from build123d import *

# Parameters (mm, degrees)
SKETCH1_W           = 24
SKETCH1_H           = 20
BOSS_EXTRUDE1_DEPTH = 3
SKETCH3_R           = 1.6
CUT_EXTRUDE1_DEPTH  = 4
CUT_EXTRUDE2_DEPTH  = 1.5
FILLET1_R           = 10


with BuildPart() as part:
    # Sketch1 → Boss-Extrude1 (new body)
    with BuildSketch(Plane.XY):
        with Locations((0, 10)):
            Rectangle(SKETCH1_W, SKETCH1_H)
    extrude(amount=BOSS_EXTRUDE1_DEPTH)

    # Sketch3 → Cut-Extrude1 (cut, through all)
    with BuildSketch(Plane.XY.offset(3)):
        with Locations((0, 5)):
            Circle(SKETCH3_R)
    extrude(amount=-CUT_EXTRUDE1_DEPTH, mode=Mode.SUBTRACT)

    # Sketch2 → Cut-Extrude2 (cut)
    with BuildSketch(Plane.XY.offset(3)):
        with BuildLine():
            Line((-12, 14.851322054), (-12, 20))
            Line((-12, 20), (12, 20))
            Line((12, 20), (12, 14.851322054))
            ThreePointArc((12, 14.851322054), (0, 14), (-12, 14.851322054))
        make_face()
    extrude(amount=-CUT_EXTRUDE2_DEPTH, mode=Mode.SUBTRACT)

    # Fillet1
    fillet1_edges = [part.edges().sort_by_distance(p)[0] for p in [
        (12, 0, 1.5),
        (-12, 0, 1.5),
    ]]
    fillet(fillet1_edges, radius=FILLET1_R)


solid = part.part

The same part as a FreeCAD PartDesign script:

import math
import FreeCAD as App
import Part
import Sketcher

V = App.Vector


def edges_at(feature, points):
    """Names of the edges that pass closest to the given points."""
    edges = feature.Shape.Edges
    near = lambda p: min(range(len(edges)), key=lambda i: edges[i].distToShape(Part.Vertex(*p))[0])
    return sorted({f"Edge{near(p) + 1}" for p in points})

doc = App.newDocument("Part")
body = doc.addObject("PartDesign::Body", "Body")

# Sketch on XY plane
sketch1 = doc.addObject("Sketcher::SketchObject", "Sketch")
body.addObject(sketch1)
sketch1.AttachmentSupport = (doc.XY_Plane, [""])
sketch1.MapMode = "FlatFace"
sketch1.addGeometry([
    Part.LineSegment(V(-12, 20, 0), V(-12, 0, 0)),
    Part.LineSegment(V(-12, 0, 0), V(12, 0, 0)),
    Part.LineSegment(V(12, 0, 0), V(12, 20, 0)),
    Part.LineSegment(V(12, 20, 0), V(-12, 20, 0)),
], False)
sketch1.addConstraint([
    Sketcher.Constraint("Coincident", 0, 2, 1, 1),
    Sketcher.Constraint("Coincident", 1, 2, 2, 1),
    Sketcher.Constraint("Coincident", 2, 2, 3, 1),
    Sketcher.Constraint("Coincident", 3, 2, 0, 1),
    Sketcher.Constraint("Vertical", 0),
    Sketcher.Constraint("Horizontal", 1),
    Sketcher.Constraint("Vertical", 2),
    Sketcher.Constraint("Horizontal", 3),
    Sketcher.Constraint("Symmetric", 0, 2, 1, 2, -1, 1),
    Sketcher.Constraint("DistanceX", 1, 1, 1, 2, 24.0),
    Sketcher.Constraint("DistanceY", 0, 2, 0, 1, 20.0),
])
pad1 = doc.addObject("PartDesign::Pad", "Pad")
body.addObject(pad1)
pad1.Profile = sketch1
pad1.Length = 3

# Sketch on XY plane
sketch2 = doc.addObject("Sketcher::SketchObject", "Sketch001")
body.addObject(sketch2)
sketch2.AttachmentSupport = (doc.XY_Plane, [""])
sketch2.MapMode = "FlatFace"
sketch2.AttachmentOffset = App.Placement(V(0, 0, 3), App.Rotation())
sketch2.addGeometry(Part.Circle(V(0, 5, 0), V(0, 0, 1), 1.6), False)
sketch2.addConstraint([
    Sketcher.Constraint("PointOnObject", 0, 3, -2),
    Sketcher.Constraint("Diameter", 0, 3.2),
    Sketcher.Constraint("DistanceY", -1, 1, 0, 3, 5.0),
])
pocket1 = doc.addObject("PartDesign::Pocket", "Pocket")
body.addObject(pocket1)
pocket1.Profile = sketch2
pocket1.Type = "ThroughAll"

# Sketch on XY plane
sketch3 = doc.addObject("Sketcher::SketchObject", "Sketch002")
body.addObject(sketch3)
sketch3.AttachmentSupport = (doc.XY_Plane, [""])
sketch3.MapMode = "FlatFace"
sketch3.AttachmentOffset = App.Placement(V(0, 0, 3), App.Rotation())
sketch3.addGeometry([
    Part.LineSegment(V(-12, 20, 0), V(-12, 15, 0)),
    Part.ArcOfCircle(Part.Circle(V(0, 99, 0), V(0, 0, 1), 85), math.radians(-98.12), math.radians(-81.88)),
    Part.LineSegment(V(12, 15, 0), V(12, 20, 0)),
    Part.LineSegment(V(12, 20, 0), V(-12, 20, 0)),
], False)
sketch3.addConstraint([
    Sketcher.Constraint("Coincident", 0, 2, 1, 1),
    Sketcher.Constraint("Coincident", 1, 2, 2, 1),
    Sketcher.Constraint("Coincident", 2, 2, 3, 1),
    Sketcher.Constraint("Coincident", 3, 2, 0, 1),
    Sketcher.Constraint("Vertical", 0),
    Sketcher.Constraint("Vertical", 2),
    Sketcher.Constraint("Horizontal", 3),
    Sketcher.Constraint("Symmetric", 0, 2, 1, 2, -2),
    Sketcher.Constraint("Radius", 1, 85.0),
    Sketcher.Constraint("DistanceX", 3, 2, 3, 1, 24.0),
    Sketcher.Constraint("DistanceY", -1, 1, 1, 3, 99.0),
    Sketcher.Constraint("DistanceY", -1, 1, 2, 2, 20.0),
])
pocket2 = doc.addObject("PartDesign::Pocket", "Pocket001")
body.addObject(pocket2)
pocket2.Profile = sketch3
pocket2.Length = 1.5
doc.recompute()

fillet = doc.addObject("PartDesign::Fillet", "Fillet")
body.addObject(fillet)
fillet.Base = (pocket2, edges_at(pocket2, [(12, 0, 1.5), (-12, 0, 1.5)]))
fillet.Radius = 10

doc.recompute()
